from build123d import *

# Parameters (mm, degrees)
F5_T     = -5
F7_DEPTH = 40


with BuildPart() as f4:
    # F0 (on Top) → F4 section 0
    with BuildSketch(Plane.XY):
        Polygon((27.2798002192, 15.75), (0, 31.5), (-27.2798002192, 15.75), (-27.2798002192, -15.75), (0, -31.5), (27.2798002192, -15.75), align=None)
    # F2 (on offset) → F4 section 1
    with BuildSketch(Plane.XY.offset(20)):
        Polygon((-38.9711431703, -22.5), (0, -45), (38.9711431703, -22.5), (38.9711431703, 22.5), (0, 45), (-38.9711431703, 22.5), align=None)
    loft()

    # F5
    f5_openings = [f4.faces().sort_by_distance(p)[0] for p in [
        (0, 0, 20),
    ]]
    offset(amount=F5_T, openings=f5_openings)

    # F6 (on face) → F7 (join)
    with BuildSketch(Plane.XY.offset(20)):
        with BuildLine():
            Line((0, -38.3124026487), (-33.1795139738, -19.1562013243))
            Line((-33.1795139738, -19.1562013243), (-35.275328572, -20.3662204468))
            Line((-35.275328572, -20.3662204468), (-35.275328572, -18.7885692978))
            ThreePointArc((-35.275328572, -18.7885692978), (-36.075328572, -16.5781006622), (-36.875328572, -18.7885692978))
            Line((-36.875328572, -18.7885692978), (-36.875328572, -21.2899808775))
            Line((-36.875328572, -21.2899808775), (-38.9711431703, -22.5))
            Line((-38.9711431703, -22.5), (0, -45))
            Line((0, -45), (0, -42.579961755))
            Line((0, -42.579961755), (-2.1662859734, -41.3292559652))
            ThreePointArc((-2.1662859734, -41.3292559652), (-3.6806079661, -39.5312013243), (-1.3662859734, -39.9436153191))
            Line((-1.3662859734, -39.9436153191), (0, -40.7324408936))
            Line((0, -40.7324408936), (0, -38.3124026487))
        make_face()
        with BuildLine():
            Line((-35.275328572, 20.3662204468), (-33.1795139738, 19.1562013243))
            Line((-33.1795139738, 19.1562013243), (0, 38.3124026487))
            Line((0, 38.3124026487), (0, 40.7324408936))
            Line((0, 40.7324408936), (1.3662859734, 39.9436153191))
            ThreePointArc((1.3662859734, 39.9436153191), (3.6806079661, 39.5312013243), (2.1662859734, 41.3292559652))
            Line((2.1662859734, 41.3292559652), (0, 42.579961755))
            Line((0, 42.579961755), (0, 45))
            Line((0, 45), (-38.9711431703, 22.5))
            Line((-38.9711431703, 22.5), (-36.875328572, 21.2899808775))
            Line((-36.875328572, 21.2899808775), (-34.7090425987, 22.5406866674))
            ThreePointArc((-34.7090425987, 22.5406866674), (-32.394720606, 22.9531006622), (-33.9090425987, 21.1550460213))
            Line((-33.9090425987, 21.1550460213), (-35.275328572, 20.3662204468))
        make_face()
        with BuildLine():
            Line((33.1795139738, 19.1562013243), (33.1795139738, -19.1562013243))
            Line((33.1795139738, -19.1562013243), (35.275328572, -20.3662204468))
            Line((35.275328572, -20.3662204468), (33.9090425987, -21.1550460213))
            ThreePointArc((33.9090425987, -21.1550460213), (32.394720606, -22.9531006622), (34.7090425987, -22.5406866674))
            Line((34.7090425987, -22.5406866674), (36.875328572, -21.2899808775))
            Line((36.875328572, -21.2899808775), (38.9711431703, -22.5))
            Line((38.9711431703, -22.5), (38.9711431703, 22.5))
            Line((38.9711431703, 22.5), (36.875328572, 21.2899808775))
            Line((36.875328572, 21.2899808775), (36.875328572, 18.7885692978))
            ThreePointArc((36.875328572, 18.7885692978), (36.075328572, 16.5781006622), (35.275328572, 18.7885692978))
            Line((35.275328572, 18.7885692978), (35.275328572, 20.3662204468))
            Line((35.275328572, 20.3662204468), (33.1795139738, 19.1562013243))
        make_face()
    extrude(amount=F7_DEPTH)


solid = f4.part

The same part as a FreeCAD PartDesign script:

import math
import FreeCAD as App
import Part
import Sketcher
from FreeCAD import Vector
Q = App.Units.Quantity


def faces_at(feature, points):
    """Names of the faces that lie closest to the given points."""
    faces = feature.Shape.Faces
    near = lambda p: min(range(len(faces)), key=lambda i: faces[i].distToShape(Part.Vertex(*p))[0])
    return sorted({f"Face{near(p) + 1}" for p in points})


def add_polygon(sketch, points):
    """Adds a closed chain of lines whose ends are joined by coincident constraints."""
    first, n = sketch.GeometryCount, len(points)
    for a, b in zip(points, points[1:] + points[:1]):
        sketch.addGeometry(Part.LineSegment(App.Vector(*a, 0), App.Vector(*b, 0)), False)
    for i in range(n):
        sketch.addConstraint(Sketcher.Constraint("Coincident", first + i, 2, first + (i + 1) % n, 1))

doc = App.newDocument("Part")
body = doc.addObject("PartDesign::Body", "Body")

sketch1 = body.newObject("Sketcher::SketchObject", "Sketch")
sketch1.AttachmentSupport = (doc.getObject("XY_Plane"), [""])
sketch1.MapMode = "FlatFace"
add_polygon(sketch1, [(27, 16), (0, 32), (-27, 16), (-27, -16), (0, -32), (27, -16)])
sketch1.addConstraint(Sketcher.Constraint("Vertical", 2))
sketch1.addConstraint(Sketcher.Constraint("Vertical", 5))
sketch1.addConstraint(Sketcher.Constraint("Symmetric", 0, 2, 3, 2, -1, 1))
sketch1.addConstraint(Sketcher.Constraint("Symmetric", 1, 2, 4, 2, -1, 1))
sketch1.addConstraint(Sketcher.Constraint("PointOnObject", 0, 2, -2))
sketch1.addConstraint(Sketcher.Constraint("Parallel", 0, 3))
sketch1.addConstraint(Sketcher.Constraint("Horizontal", 2, 2, 4, 2))
sketch1.addConstraint(Sketcher.Constraint("Angle", 0, Q("150 deg")))
sketch1.addConstraint(Sketcher.Constraint("DistanceY", 2, 2, 2, 1, 31.5))
sketch1.addConstraint(Sketcher.Constraint("DistanceY", 3, 2, 0, 2, 63.0))

sketch2 = body.newObject("Sketcher::SketchObject", "Sketch001")
sketch2.AttachmentSupport = (doc.getObject("XY_Plane"), [""])
sketch2.MapMode = "FlatFace"
sketch2.AttachmentOffset = App.Placement(Vector(0, 0, 20), App.Rotation())
add_polygon(sketch2, [(-39, -22), (0, -45), (39, -22), (39, 22), (0, 45), (-39, 22)])
sketch2.addConstraint(Sketcher.Constraint("Vertical", 2))
sketch2.addConstraint(Sketcher.Constraint("Vertical", 5))
sketch2.addConstraint(Sketcher.Constraint("Symmetric", 0, 2, 3, 2, -1, 1))
sketch2.addConstraint(Sketcher.Constraint("Symmetric", 1, 2, 4, 2, -1, 1))
sketch2.addConstraint(Sketcher.Constraint("PointOnObject", 0, 2, -2))
sketch2.addConstraint(Sketcher.Constraint("Parallel", 0, 3))
sketch2.addConstraint(Sketcher.Constraint("Horizontal", 2, 2, 4, 2))
sketch2.addConstraint(Sketcher.Constraint("DistanceY", 2, 1, 2, 2, 45.0))
sketch2.addConstraint(Sketcher.Constraint("Angle", 0, Q("-30 deg")))
sketch2.addConstraint(Sketcher.Constraint("Distance", 0, 45.0))

additiveloft = body.newObject("PartDesign::AdditiveLoft", "AdditiveLoft")
additiveloft.Profile = sketch1
additiveloft.Sections = [sketch2]
doc.recompute()

thickness = body.newObject("PartDesign::Thickness", "Thickness")
thickness.Base = (additiveloft, faces_at(additiveloft, [(0, 0, 20)]))
thickness.Value = 5
thickness.Reversed = True
thickness.Join = "Arc"

sketch3 = body.newObject("Sketcher::SketchObject", "Sketch002")
sketch3.AttachmentSupport = (doc.getObject("XY_Plane"), [""])
sketch3.MapMode = "FlatFace"
sketch3.AttachmentOffset = App.Placement(Vector(0, 0, 20), App.Rotation())
sketch3.addGeometry(Part.LineSegment(Vector(0, -38.3, 0), Vector(-33.2, -19.2, 0)), False)
sketch3.addGeometry(Part.LineSegment(Vector(-33.2, -19.2, 0), Vector(-35.3, -20.4, 0)), False)
sketch3.addGeometry(Part.LineSegment(Vector(-35.3, -20.4, 0), Vector(-35.3, -18.8, 0)), False)
sketch3.addGeometry(Part.ArcOfCircle(Part.Circle(Vector(-36.1, -17.8, 0), Vector(0, 0, 1), 1.2), math.radians(-50), math.radians(230)), False)
sketch3.addGeometry(Part.LineSegment(Vector(-36.9, -18.8, 0), Vector(-36.9, -21.3, 0)), False)
sketch3.addGeometry(Part.LineSegment(Vector(-36.9, -21.3, 0), Vector(-39, -22.5, 0)), False)
sketch3.addGeometry(Part.LineSegment(Vector(-39, -22.5, 0), Vector(0, -45, 0)), False)
sketch3.addGeometry(Part.LineSegment(Vector(0, -45, 0), Vector(0, -42.6, 0)), False)
sketch3.addGeometry(Part.LineSegment(Vector(0, -42.6, 0), Vector(-2.2, -41.3, 0)), False)
sketch3.addGeometry(Part.ArcOfCircle(Part.Circle(Vector(-2.6, -40.2, 0), Vector(0, 0, 1), 1.2), math.radians(10), math.radians(290)), False)
sketch3.addGeometry(Part.LineSegment(Vector(-1.4, -39.9, 0), Vector(0, -40.7, 0)), False)
sketch3.addGeometry(Part.LineSegment(Vector(0, -40.7, 0), Vector(0, -38.3, 0)), False)
sketch3.addGeometry(Part.LineSegment(Vector(-35.3, 20.4, 0), Vector(-33.2, 19.2, 0)), False)
sketch3.addGeometry(Part.LineSegment(Vector(-33.2, 19.2, 0), Vector(0, 38.3, 0)), False)
sketch3.addGeometry(Part.LineSegment(Vector(0, 38.3, 0), Vector(0, 40.7, 0)), False)
sketch3.addGeometry(Part.LineSegment(Vector(0, 40.7, 0), Vector(1.4, 39.9, 0)), False)
sketch3.addGeometry(Part.ArcOfCircle(Part.Circle(Vector(2.6, 40.2, 0), Vector(0, 0, 1), 1.2), math.radians(-170), math.radians(110)), False)
sketch3.addGeometry(Part.LineSegment(Vector(2.2, 41.3, 0), Vector(0, 42.6, 0)), False)
sketch3.addGeometry(Part.LineSegment(Vector(0, 42.6, 0), Vector(0, 45, 0)), False)
sketch3.addGeometry(Part.LineSegment(Vector(0, 45, 0), Vector(-39, 22.5, 0)), False)
sketch3.addGeometry(Part.LineSegment(Vector(-39, 22.5, 0), Vector(-36.9, 21.3, 0)), False)
sketch3.addGeometry(Part.LineSegment(Vector(-36.9, 21.3, 0), Vector(-34.7, 22.5, 0)), False)
sketch3.addGeometry(Part.ArcOfCircle(Part.Circle(Vector(-33.5, 22.3, 0), Vector(0, 0, 1), 1.2), math.radians(-110), math.radians(170)), False)
sketch3.addGeometry(Part.LineSegment(Vector(-33.9, 21.2, 0), Vector(-35.3, 20.4, 0)), False)
sketch3.addGeometry(Part.LineSegment(Vector(33.2, 19.2, 0), Vector(33.2, -19.2, 0)), False)
sketch3.addGeometry(Part.LineSegment(Vector(33.2, -19.2, 0), Vector(35.3, -20.4, 0)), False)
sketch3.addGeometry(Part.LineSegment(Vector(35.3, -20.4, 0), Vector(33.9, -21.2, 0)), False)
sketch3.addGeometry(Part.ArcOfCircle(Part.Circle(Vector(33.5, -22.3, 0), Vector(0, 0, 1), 1.2), math.radians(70), math.radians(350)), False)
sketch3.addGeometry(Part.LineSegment(Vector(34.7, -22.5, 0), Vector(36.9, -21.3, 0)), False)
sketch3.addGeometry(Part.LineSegment(Vector(36.9, -21.3, 0), Vector(39, -22.5, 0)), False)
sketch3.addGeometry(Part.LineSegment(Vector(39, -22.5, 0), Vector(39, 22.5, 0)), False)
sketch3.addGeometry(Part.LineSegment(Vector(39, 22.5, 0), Vector(36.9, 21.3, 0)), False)
sketch3.addGeometry(Part.LineSegment(Vector(36.9, 21.3, 0), Vector(36.9, 18.8, 0)), False)
sketch3.addGeometry(Part.ArcOfCircle(Part.Circle(Vector(36.1, 17.8, 0), Vector(0, 0, 1), 1.2), math.radians(130), math.radians(410)), False)
sketch3.addGeometry(Part.LineSegment(Vector(35.3, 18.8, 0), Vector(35.3, 20.4, 0)), False)
sketch3.addGeometry(Part.LineSegment(Vector(35.3, 20.4, 0), Vector(33.2, 19.2, 0)), False)
sketch3.addConstraint(Sketcher.Constraint("Coincident", 0, 2, 1, 1))
sketch3.addConstraint(Sketcher.Constraint("Coincident", 1, 2, 2, 1))
sketch3.addConstraint(Sketcher.Constraint("Coincident", 2, 2, 3, 1))
sketch3.addConstraint(Sketcher.Constraint("Coincident", 3, 2, 4, 1))
sketch3.addConstraint(Sketcher.Constraint("Coincident", 4, 2, 5, 1))
sketch3.addConstraint(Sketcher.Constraint("Coincident", 5, 2, 6, 1))
sketch3.addConstraint(Sketcher.Constraint("Coincident", 6, 2, 7, 1))
sketch3.addConstraint(Sketcher.Constraint("Coincident", 7, 2, 8, 1))
sketch3.addConstraint(Sketcher.Constraint("Coincident", 8, 2, 9, 2))
sketch3.addConstraint(Sketcher.Constraint("Coincident", 9, 1, 10, 1))
sketch3.addConstraint(Sketcher.Constraint("Coincident", 10, 2, 11, 1))
sketch3.addConstraint(Sketcher.Constraint("Coincident", 11, 2, 0, 1))
sketch3.addConstraint(Sketcher.Constraint("Coincident", 12, 2, 13, 1))
sketch3.addConstraint(Sketcher.Constraint("Coincident", 13, 2, 14, 1))
sketch3.addConstraint(Sketcher.Constraint("Coincident", 14, 2, 15, 1))
sketch3.addConstraint(Sketcher.Constraint("Coincident", 15, 2, 16, 1))
sketch3.addConstraint(Sketcher.Constraint("Coincident", 16, 2, 17, 1))
sketch3.addConstraint(Sketcher.Constraint("Coincident", 17, 2, 18, 1))
sketch3.addConstraint(Sketcher.Constraint("Coincident", 18, 2, 19, 1))
sketch3.addConstraint(Sketcher.Constraint("Coincident", 19, 2, 20, 1))
sketch3.addConstraint(Sketcher.Constraint("Coincident", 20, 2, 21, 1))
sketch3.addConstraint(Sketcher.Constraint("Coincident", 21, 2, 22, 2))
sketch3.addConstraint(Sketcher.Constraint("Coincident", 22, 1, 23, 1))
sketch3.addConstraint(Sketcher.Constraint("Coincident", 23, 2, 12, 1))
sketch3.addConstraint(Sketcher.Constraint("Coincident", 24, 2, 25, 1))
sketch3.addConstraint(Sketcher.Constraint("Coincident", 25, 2, 26, 1))
sketch3.addConstraint(Sketcher.Constraint("Coincident", 26, 2, 27, 1))
sketch3.addConstraint(Sketcher.Constraint("Coincident", 27, 2, 28, 1))
sketch3.addConstraint(Sketcher.Constraint("Coincident", 28, 2, 29, 1))
sketch3.addConstraint(Sketcher.Constraint("Coincident", 29, 2, 30, 1))
sketch3.addConstraint(Sketcher.Constraint("Coincident", 30, 2, 31, 1))
sketch3.addConstraint(Sketcher.Constraint("Coincident", 31, 2, 32, 1))
sketch3.addConstraint(Sketcher.Constraint("Coincident", 32, 2, 33, 2))
sketch3.addConstraint(Sketcher.Constraint("Coincident", 33, 1, 34, 1))
sketch3.addConstraint(Sketcher.Constraint("Coincident", 34, 2, 35, 1))
sketch3.addConstraint(Sketcher.Constraint("Coincident", 35, 2, 24, 1))
sketch3.addConstraint(Sketcher.Constraint("Vertical", 2))
sketch3.addConstraint(Sketcher.Constraint("Vertical", 4))
sketch3.addConstraint(Sketcher.Constraint("Vertical", 7))
sketch3.addConstraint(Sketcher.Constraint("Vertical", 11))
sketch3.addConstraint(Sketcher.Constraint("Vertical", 14))
sketch3.addConstraint(Sketcher.Constraint("Vertical", 18))
sketch3.addConstraint(Sketcher.Constraint("Vertical", 24))
sketch3.addConstraint(Sketcher.Constraint("Vertical", 30))
sketch3.addConstraint(Sketcher.Constraint("Vertical", 32))
sketch3.addConstraint(Sketcher.Constraint("Vertical", 34))
sketch3.addConstraint(Sketcher.Constraint("Equal", 3, 9))
sketch3.addConstraint(Sketcher.Constraint("Equal", 9, 16))
sketch3.addConstraint(Sketcher.Constraint("Equal", 16, 22))
sketch3.addConstraint(Sketcher.Constraint("Equal", 22, 27))
sketch3.addConstraint(Sketcher.Constraint("Equal", 27, 33))
sketch3.addConstraint(Sketcher.Constraint("Symmetric", 9, 3, 16, 3, -1, 1))
sketch3.addConstraint(Sketcher.Constraint("Symmetric", 22, 3, 27, 3, -1, 1))
sketch3.addConstraint(Sketcher.Constraint("Symmetric", 3, 3, 33, 3, -1, 1))
sketch3.addConstraint(Sketcher.Constraint("Symmetric", 11, 2, 13, 2, -1, 1))
sketch3.addConstraint(Sketcher.Constraint("Symmetric", 7, 2, 17, 2, -1, 1))
sketch3.addConstraint(Sketcher.Constraint("Symmetric", 12, 2, 24, 2, -1, 1))
sketch3.addConstraint(Sketcher.Constraint("Symmetric", 23, 2, 25, 2, -1, 1))
sketch3.addConstraint(Sketcher.Constraint("Symmetric", 20, 2, 28, 2, -1, 1))
sketch3.addConstraint(Sketcher.Constraint("Symmetric", 19, 2, 29, 2, -1, 1))
sketch3.addConstraint(Sketcher.Constraint("Symmetric", 5, 2, 30, 2, -1, 1))
sketch3.addConstraint(Sketcher.Constraint("Symmetric", 4, 2, 31, 2, -1, 1))
sketch3.addConstraint(Sketcher.Constraint("Symmetric", 1, 2, 34, 2, -1, 1))
sketch3.addConstraint(Sketcher.Constraint("Symmetric", 0, 2, 35, 2, -1, 1))
sketch3.addConstraint(Sketcher.Constraint("Symmetric", 1, 2, 25, 2, -2))
sketch3.addConstraint(Sketcher.Constraint("Symmetric", 4, 2, 28, 2, -2))
sketch3.addConstraint(Sketcher.Constraint("Symmetric", 10, 2, 14, 2, -1))
sketch3.addConstraint(Sketcher.Constraint("Symmetric", 6, 2, 18, 2, -1))
sketch3.addConstraint(Sketcher.Constraint("Parallel", 1, 5))
sketch3.addConstraint(Sketcher.Constraint("Parallel", 0, 6))
sketch3.addConstraint(Sketcher.Constraint("Parallel", 6, 8))
sketch3.addConstraint(Sketcher.Constraint("Parallel", 8, 10))
sketch3.addConstraint(Sketcher.Constraint("Parallel", 10, 12))
sketch3.addConstraint(Sketcher.Constraint("Parallel", 5, 13))
sketch3.addConstraint(Sketcher.Constraint("Parallel", 12, 15))
sketch3.addConstraint(Sketcher.Constraint("Parallel", 15, 17))
sketch3.addConstraint(Sketcher.Constraint("Parallel", 13, 19))
sketch3.addConstraint(Sketcher.Constraint("Parallel", 19, 21))
sketch3.addConstraint(Sketcher.Constraint("Parallel", 21, 23))
sketch3.addConstraint(Sketcher.Constraint("Parallel", 23, 26))
sketch3.addConstraint(Sketcher.Constraint("Parallel", 26, 28))
sketch3.addConstraint(Sketcher.Constraint("Horizontal", 2, 2, 3, 2))
sketch3.addConstraint(Sketcher.Constraint("Equal", 7, 11))
sketch3.addConstraint(Sketcher.Constraint("Equal", 1, 5))
sketch3.addConstraint(Sketcher.Constraint("Equal", 17, 21))
sketch3.addConstraint(Sketcher.Constraint("Equal", 15, 23))
sketch3.addConstraint(Sketcher.Constraint("DistanceY", 30, 1, 30, 2, 45.0))
sketch3.addConstraint(Sketcher.Constraint("Angle", 0, Q("150 deg")))
sketch3.addConstraint(Sketcher.Constraint("Radius", 3, 1.25))
sketch3.addConstraint(Sketcher.Constraint("Distance", 6, 45.0))
sketch3.addConstraint(Sketcher.Constraint("DistanceY", 9, 3, 0, 2, 21.0))
sketch3.addConstraint(Sketcher.Constraint("DistanceY", 27, 3, 3, 3, 4.5))
sketch3.addConstraint(Sketcher.Constraint("DistanceX", 3, 3, 1, 2, 0.8))
sketch3.addConstraint(Sketcher.Constraint("DistanceX", 8, 2, 9, 1, 0.8))
sketch3.addConstraint(Sketcher.Constraint("DistanceY", 2, 1, 2, 2, 1.577651))
sketch3.addConstraint(Sketcher.Constraint("DistanceY", 4, 2, 4, 1, 2.501412))
sketch3.addConstraint(Sketcher.Constraint("DistanceY", 7, 1, 7, 2, 2.420038))
pad1 = body.newObject("PartDesign::Pad", "Pad")
pad1.Profile = sketch3
pad1.Length = 40

doc.recompute()
